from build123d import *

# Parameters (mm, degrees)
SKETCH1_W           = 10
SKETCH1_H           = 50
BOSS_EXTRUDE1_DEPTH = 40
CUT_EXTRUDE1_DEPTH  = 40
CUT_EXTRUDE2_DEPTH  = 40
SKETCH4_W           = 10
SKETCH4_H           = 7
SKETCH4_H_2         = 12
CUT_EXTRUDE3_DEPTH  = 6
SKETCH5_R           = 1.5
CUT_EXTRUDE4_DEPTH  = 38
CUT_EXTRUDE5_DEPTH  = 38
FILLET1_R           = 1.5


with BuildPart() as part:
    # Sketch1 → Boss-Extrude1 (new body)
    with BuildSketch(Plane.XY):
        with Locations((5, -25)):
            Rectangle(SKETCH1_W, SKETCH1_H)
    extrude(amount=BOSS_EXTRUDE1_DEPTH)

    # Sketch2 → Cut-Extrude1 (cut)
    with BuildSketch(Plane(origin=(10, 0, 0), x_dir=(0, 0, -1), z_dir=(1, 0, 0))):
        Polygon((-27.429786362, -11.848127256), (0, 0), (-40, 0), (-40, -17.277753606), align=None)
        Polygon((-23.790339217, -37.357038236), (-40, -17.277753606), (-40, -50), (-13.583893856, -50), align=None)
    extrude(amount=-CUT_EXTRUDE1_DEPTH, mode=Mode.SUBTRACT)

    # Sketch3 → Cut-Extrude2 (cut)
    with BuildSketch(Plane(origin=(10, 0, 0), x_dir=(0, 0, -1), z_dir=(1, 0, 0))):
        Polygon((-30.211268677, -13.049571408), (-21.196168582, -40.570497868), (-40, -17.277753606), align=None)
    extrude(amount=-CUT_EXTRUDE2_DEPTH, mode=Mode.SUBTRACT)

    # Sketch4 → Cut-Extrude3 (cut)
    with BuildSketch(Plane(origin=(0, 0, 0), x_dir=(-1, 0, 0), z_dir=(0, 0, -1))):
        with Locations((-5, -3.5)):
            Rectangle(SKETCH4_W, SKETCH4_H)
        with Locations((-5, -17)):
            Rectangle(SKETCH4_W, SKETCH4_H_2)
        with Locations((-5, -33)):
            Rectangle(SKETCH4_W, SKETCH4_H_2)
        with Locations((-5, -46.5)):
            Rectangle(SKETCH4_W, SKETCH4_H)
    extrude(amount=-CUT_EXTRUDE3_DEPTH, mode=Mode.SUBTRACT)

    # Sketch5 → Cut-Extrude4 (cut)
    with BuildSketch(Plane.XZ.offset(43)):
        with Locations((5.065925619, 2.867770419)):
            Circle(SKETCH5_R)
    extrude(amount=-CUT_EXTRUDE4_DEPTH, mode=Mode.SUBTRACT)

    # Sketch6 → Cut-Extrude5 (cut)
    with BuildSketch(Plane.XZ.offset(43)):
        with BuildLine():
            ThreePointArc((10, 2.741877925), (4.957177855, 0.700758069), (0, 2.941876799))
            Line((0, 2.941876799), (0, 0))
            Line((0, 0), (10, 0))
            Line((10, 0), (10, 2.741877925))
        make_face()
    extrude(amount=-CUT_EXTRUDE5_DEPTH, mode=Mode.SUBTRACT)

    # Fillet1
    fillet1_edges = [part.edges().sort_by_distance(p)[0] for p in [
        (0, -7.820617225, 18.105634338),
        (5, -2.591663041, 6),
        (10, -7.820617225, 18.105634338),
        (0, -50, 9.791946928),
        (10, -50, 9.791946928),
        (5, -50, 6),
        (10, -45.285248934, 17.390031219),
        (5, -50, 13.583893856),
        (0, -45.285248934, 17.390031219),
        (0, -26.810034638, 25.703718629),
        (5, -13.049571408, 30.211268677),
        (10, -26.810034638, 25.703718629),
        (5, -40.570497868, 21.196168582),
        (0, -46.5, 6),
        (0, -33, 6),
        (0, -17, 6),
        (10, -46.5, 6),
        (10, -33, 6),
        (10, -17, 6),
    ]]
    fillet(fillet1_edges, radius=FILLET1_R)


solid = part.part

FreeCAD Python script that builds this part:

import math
import FreeCAD as App
import Part
import Sketcher
Q = App.Units.Quantity


def edges_at(feature, points):
    """Names of the edges that pass closest to the given points."""
    edges = feature.Shape.Edges
    near = lambda p: min(range(len(edges)), key=lambda i: edges[i].distToShape(Part.Vertex(*p))[0])
    return sorted({f"Edge{near(p) + 1}" for p in points})

doc = App.newDocument("Part")
params = doc.addObject("Spreadsheet::Sheet", "Params")
for row, (alias, value) in enumerate([
    ("sketch1_width", "10 mm"),
    ("sketch1_height", "50 mm"),
    ("pad1_length", "40 mm"),
    ("sketch2_height", "40 mm"),
    ("pocket1_length", "40 mm"),
    ("pocket2_length", "40 mm"),
    ("sketch4_width", "10 mm"),
    ("sketch4_height", "7 mm"),
    ("sketch4_height2", "12 mm"),
    ("pocket3_length", "6 mm"),
    ("sketch5_diameter", "3 mm"),
    ("pocket4_length", "38 mm"),
    ("sketch6_width", "10 mm"),
    ("pocket5_length", "38 mm"),
    ("fillet_radius", "1.5 mm"),
], start=1):
    params.set(f"A{row}", alias)
    params.set(f"B{row}", "=" + value)
    params.setAlias(f"B{row}", alias)

body = doc.addObject("PartDesign::Body", "Body")

# Sketch on XY plane
sketch1 = body.newObject("Sketcher::SketchObject", "Sketch")
sketch1.AttachmentSupport = (doc.getObject("XY_Plane"), [""])
sketch1.MapMode = "FlatFace"
sketch1.addGeometry([
    Part.LineSegment(App.Vector(0, 0, 0), App.Vector(0, -50, 0)),
    Part.LineSegment(App.Vector(0, -50, 0), App.Vector(10, -50, 0)),
    Part.LineSegment(App.Vector(10, -50, 0), App.Vector(10, 0, 0)),
    Part.LineSegment(App.Vector(10, 0, 0), App.Vector(0, 0, 0)),
], False)
sketch1.addConstraint([
    Sketcher.Constraint("Coincident", 0, 2, 1, 1),
    Sketcher.Constraint("Coincident", 1, 2, 2, 1),
    Sketcher.Constraint("Coincident", 2, 2, 3, 1),
    Sketcher.Constraint("Coincident", 3, 2, 0, 1),
    Sketcher.Constraint("Vertical", 0),
    Sketcher.Constraint("Horizontal", 1),
    Sketcher.Constraint("Vertical", 2),
    Sketcher.Constraint("Horizontal", 3),
    Sketcher.Constraint("Coincident", 3, 2, -1, 1),
    Sketcher.Constraint("DistanceX", 1, 1, 1, 2, Q("10 mm")),
    Sketcher.Constraint("DistanceY", 0, 2, 0, 1, Q("50 mm")),
])
sketch1.setExpression("Constraints[9]", "Params.sketch1_width")
sketch1.setExpression("Constraints[10]", "Params.sketch1_height")
pad1 = body.newObject("PartDesign::Pad", "Pad")
pad1.Profile = sketch1
pad1.setExpression("Length", "Params.pad1_length")

# Sketch on YZ plane
sketch2 = body.newObject("Sketcher::SketchObject", "Sketch001")
sketch2.AttachmentSupport = (doc.getObject("YZ_Plane"), [""])
sketch2.MapMode = "FlatFace"
sketch2.AttachmentOffset = App.Placement(App.Vector(0, 0, 10), App.Rotation())
sketch2.addGeometry([
    Part.LineSegment(App.Vector(-12, 27, 0), App.Vector(0, 0, 0)),  # 0
    Part.LineSegment(App.Vector(0, 0, 0), App.Vector(0, 40, 0)),  # 1
    Part.LineSegment(App.Vector(0, 40, 0), App.Vector(-17, 40, 0)),  # 2
    Part.LineSegment(App.Vector(-17, 40, 0), App.Vector(-12, 27, 0)),  # 3
    Part.LineSegment(App.Vector(-37, 24, 0), App.Vector(-17, 40, 0)),  # 4
    Part.LineSegment(App.Vector(-17, 40, 0), App.Vector(-50, 40, 0)),  # 5
    Part.LineSegment(App.Vector(-50, 40, 0), App.Vector(-50, 14, 0)),  # 6
    Part.LineSegment(App.Vector(-50, 14, 0), App.Vector(-37, 24, 0)),  # 7
], False)
sketch2.addConstraint([
    Sketcher.Constraint("Coincident", 0, 2, 1, 1),
    Sketcher.Constraint("Coincident", 1, 2, 2, 1),
    Sketcher.Constraint("Coincident", 2, 2, 3, 1),
    Sketcher.Constraint("Coincident", 3, 2, 0, 1),
    Sketcher.Constraint("Coincident", 4, 2, 5, 1),
    Sketcher.Constraint("Coincident", 5, 2, 6, 1),
    Sketcher.Constraint("Coincident", 6, 2, 7, 1),
    Sketcher.Constraint("Coincident", 7, 2, 4, 1),
    Sketcher.Constraint("Vertical", 1),
    Sketcher.Constraint("Horizontal", 2),
    Sketcher.Constraint("Horizontal", 5),
    Sketcher.Constraint("Vertical", 6),
    Sketcher.Constraint("Coincident", 0, 2, -1, 1),
    Sketcher.Constraint("Coincident", 4, 2, 2, 2),
    Sketcher.Constraint("Parallel", 0, 3),
    Sketcher.Constraint("Parallel", 4, 7),
    Sketcher.Constraint("DistanceY", 1, 1, 1, 2, Q("40 mm")),
    Sketcher.Constraint("DistanceX", 5, 2, -1, 1, Q("50 mm")),
    Sketcher.Constraint("Distance", 0, Q("29.879279 mm")),
    Sketcher.Constraint("Distance", 3, Q("13.692739 mm")),
    Sketcher.Constraint("Distance", 7, Q("16.248569 mm")),
    Sketcher.Constraint("DistanceY", 6, 2, 6, 1, Q("26.416106 mm")),
])
sketch2.setExpression("Constraints[16]", "Params.sketch2_height")
pocket1 = body.newObject("PartDesign::Pocket", "Pocket")
pocket1.Profile = sketch2
pocket1.setExpression("Length", "Params.pocket1_length")

# Sketch on YZ plane
sketch3 = body.newObject("Sketcher::SketchObject", "Sketch002")
sketch3.AttachmentSupport = (doc.getObject("YZ_Plane"), [""])
sketch3.MapMode = "FlatFace"
sketch3.AttachmentOffset = App.Placement(App.Vector(0, 0, 10), App.Rotation())
sketch3.addGeometry([
    Part.LineSegment(App.Vector(-41, 21, 0), App.Vector(-13, 30, 0)),
    Part.LineSegment(App.Vector(-13, 30, 0), App.Vector(-17, 40, 0)),
    Part.LineSegment(App.Vector(-17, 40, 0), App.Vector(-41, 21, 0)),
], False)
sketch3.addConstraint([
    Sketcher.Constraint("Coincident", 0, 2, 1, 1),
    Sketcher.Constraint("Coincident", 1, 2, 2, 1),
    Sketcher.Constraint("Coincident", 2, 2, 0, 1),
    Sketcher.Constraint("DistanceY", -1, 1, 1, 2, Q("40 mm")),
    Sketcher.Constraint("DistanceY", 2, 2, 0, 2, Q("9.0151 mm")),
    Sketcher.Constraint("Distance", 0, Q("28.959859 mm")),
    Sketcher.Constraint("Distance", 1, Q("10.662869 mm")),
    Sketcher.Constraint("Distance", 2, Q("29.935531 mm")),
    Sketcher.Constraint("DistanceX", 0, 2, -1, 1, Q("13.049571 mm")),
])
pocket2 = body.newObject("PartDesign::Pocket", "Pocket001")
pocket2.Profile = sketch3
pocket2.setExpression("Length", "Params.pocket2_length")

# Sketch on XY plane
sketch4 = body.newObject("Sketcher::SketchObject", "Sketch003")
sketch4.AttachmentSupport = (doc.getObject("XY_Plane"), [""])
sketch4.MapMode = "FlatFace"
sketch4.addGeometry([
    Part.LineSegment(App.Vector(10, 0, 0), App.Vector(10, -7, 0)),  # 0
    Part.LineSegment(App.Vector(10, -7, 0), App.Vector(0, -7, 0)),  # 1
    Part.LineSegment(App.Vector(0, -7, 0), App.Vector(0, 0, 0)),  # 2
    Part.LineSegment(App.Vector(0, 0, 0), App.Vector(10, 0, 0)),  # 3
    Part.LineSegment(App.Vector(10, -11, 0), App.Vector(10, -23, 0)),  # 4
    Part.LineSegment(App.Vector(10, -23, 0), App.Vector(0, -23, 0)),  # 5
    Part.LineSegment(App.Vector(0, -23, 0), App.Vector(0, -11, 0)),  # 6
    Part.LineSegment(App.Vector(0, -11, 0), App.Vector(10, -11, 0)),  # 7
    Part.LineSegment(App.Vector(10, -27, 0), App.Vector(10, -39, 0)),  # 8
    Part.LineSegment(App.Vector(10, -39, 0), App.Vector(0, -39, 0)),  # 9
    Part.LineSegment(App.Vector(0, -39, 0), App.Vector(0, -27, 0)),  # 10
    Part.LineSegment(App.Vector(0, -27, 0), App.Vector(10, -27, 0)),  # 11
    Part.LineSegment(App.Vector(10, -43, 0), App.Vector(10, -50, 0)),  # 12
    Part.LineSegment(App.Vector(10, -50, 0), App.Vector(0, -50, 0)),  # 13
    Part.LineSegment(App.Vector(0, -50, 0), App.Vector(0, -43, 0)),  # 14
    Part.LineSegment(App.Vector(0, -43, 0), App.Vector(10, -43, 0)),  # 15
], False)
sketch4.addConstraint([
    Sketcher.Constraint("Coincident", 0, 2, 1, 1),
    Sketcher.Constraint("Coincident", 1, 2, 2, 1),
    Sketcher.Constraint("Coincident", 2, 2, 3, 1),
    Sketcher.Constraint("Coincident", 3, 2, 0, 1),
    Sketcher.Constraint("Coincident", 4, 2, 5, 1),
    Sketcher.Constraint("Coincident", 5, 2, 6, 1),
    Sketcher.Constraint("Coincident", 6, 2, 7, 1),
    Sketcher.Constraint("Coincident", 7, 2, 4, 1),
    Sketcher.Constraint("Coincident", 8, 2, 9, 1),
    Sketcher.Constraint("Coincident", 9, 2, 10, 1),
    Sketcher.Constraint("Coincident", 10, 2, 11, 1),
    Sketcher.Constraint("Coincident", 11, 2, 8, 1),
    Sketcher.Constraint("Coincident", 12, 2, 13, 1),
    Sketcher.Constraint("Coincident", 13, 2, 14, 1),
    Sketcher.Constraint("Coincident", 14, 2, 15, 1),
    Sketcher.Constraint("Coincident", 15, 2, 12, 1),
    Sketcher.Constraint("Vertical", 0),
    Sketcher.Constraint("Horizontal", 1),
    Sketcher.Constraint("Vertical", 2),
    Sketcher.Constraint("Horizontal", 3),
    Sketcher.Constraint("Vertical", 4),
    Sketcher.Constraint("Horizontal", 5),
    Sketcher.Constraint("Vertical", 6),
    Sketcher.Constraint("Horizontal", 7),
    Sketcher.Constraint("Vertical", 8),
    Sketcher.Constraint("Horizontal", 9),
    Sketcher.Constraint("Vertical", 10),
    Sketcher.Constraint("Horizontal", 11),
    Sketcher.Constraint("Vertical", 12),
    Sketcher.Constraint("Horizontal", 13),
    Sketcher.Constraint("Vertical", 14),
    Sketcher.Constraint("Horizontal", 15),
    Sketcher.Constraint("Coincident", 2, 2, -1, 1),
    Sketcher.Constraint("PointOnObject", 5, 2, -2),
    Sketcher.Constraint("PointOnObject", 9, 2, -2),
    Sketcher.Constraint("PointOnObject", 13, 2, -2),
    Sketcher.Constraint("Vertical", 3, 2, 4, 2),
    Sketcher.Constraint("Vertical", 7, 2, 8, 2),
    Sketcher.Constraint("Vertical", 11, 2, 12, 2),
    Sketcher.Constraint("Equal", 6, 8),
    Sketcher.Constraint("Equal", 2, 12),
    Sketcher.Constraint("DistanceX", 1, 2, 1, 1, Q("10 mm")),
    Sketcher.Constraint("DistanceY", 0, 2, 0, 1, Q("7 mm")),
    Sketcher.Constraint("DistanceY", 4, 2, 4, 1, Q("12 mm")),
    Sketcher.Constraint("DistanceY", 4, 2, -1, 1, Q("23 mm")),
    Sketcher.Constraint("DistanceY", 8, 2, -1, 1, Q("39 mm")),
    Sketcher.Constraint("DistanceY", 12, 2, -1, 1, Q("50 mm")),
])
sketch4.setExpression("Constraints[41]", "Params.sketch4_width")
sketch4.setExpression("Constraints[42]", "Params.sketch4_height")
sketch4.setExpression("Constraints[43]", "Params.sketch4_height2")
pocket3 = body.newObject("PartDesign::Pocket", "Pocket002")
pocket3.Profile = sketch4
pocket3.setExpression("Length", "Params.pocket3_length")
pocket3.Reversed = True

# Sketch on XZ plane
sketch5 = body.newObject("Sketcher::SketchObject", "Sketch004")
sketch5.AttachmentSupport = (doc.getObject("XZ_Plane"), [""])
sketch5.MapMode = "FlatFace"
sketch5.AttachmentOffset = App.Placement(App.Vector(0, 0, 43), App.Rotation())
sketch5.addGeometry(Part.Circle(App.Vector(5.1, 2.9, 0), App.Vector(0, 0, 1), 1.5), False)
sketch5.addConstraint([
    Sketcher.Constraint("Diameter", 0, Q("3 mm")),
    Sketcher.Constraint("DistanceY", -1, 1, 0, 3, Q("2.86777 mm")),
    Sketcher.Constraint("DistanceX", -1, 1, 0, 3, Q("5.065926 mm")),
])
sketch5.setExpression("Constraints[0]", "Params.sketch5_diameter")
pocket4 = body.newObject("PartDesign::Pocket", "Pocket003")
pocket4.Profile = sketch5
pocket4.setExpression("Length", "Params.pocket4_length")

# Sketch on XZ plane
sketch6 = body.newObject("Sketcher::SketchObject", "Sketch005")
sketch6.AttachmentSupport = (doc.getObject("XZ_Plane"), [""])
sketch6.MapMode = "FlatFace"
sketch6.AttachmentOffset = App.Placement(App.Vector(0, 0, 43), App.Rotation())
sketch6.addGeometry([
    Part.ArcOfCircle(Part.Circle(App.Vector(5.1, 7.6, 0), App.Vector(0, 0, 1), 6.9), math.radians(-138), math.radians(-45)),
    Part.LineSegment(App.Vector(0, 2.9, 0), App.Vector(0, 0, 0)),
    Part.LineSegment(App.Vector(0, 0, 0), App.Vector(10, 0, 0)),
    Part.LineSegment(App.Vector(10, 0, 0), App.Vector(10, 2.7, 0)),
], False)
sketch6.addConstraint([
    Sketcher.Constraint("Coincident", 0, 1, 1, 1),
    Sketcher.Constraint("Coincident", 1, 2, 2, 1),
    Sketcher.Constraint("Coincident", 2, 2, 3, 1),
    Sketcher.Constraint("Coincident", 3, 2, 0, 2),
    Sketcher.Constraint("Vertical", 1),
    Sketcher.Constraint("Horizontal", 2),
    Sketcher.Constraint("Vertical", 3),
    Sketcher.Constraint("Coincident", 1, 2, -1, 1),
    Sketcher.Constraint("DistanceX", 2, 1, 2, 2, Q("10 mm")),
    Sketcher.Constraint("DistanceY", 3, 2, 0, 1, Q("0.199999 mm")),
    Sketcher.Constraint("Radius", 0, Q("6.910009 mm")),
    Sketcher.Constraint("DistanceY", 1, 2, 1, 1, Q("2.941877 mm")),
])
sketch6.setExpression("Constraints[8]", "Params.sketch6_width")
pocket5 = body.newObject("PartDesign::Pocket", "Pocket004")
pocket5.Profile = sketch6
pocket5.setExpression("Length", "Params.pocket5_length")
doc.recompute()

fillet = body.newObject("PartDesign::Fillet", "Fillet")
fillet.Base = (pocket5, edges_at(pocket5, [
    (0, -7.22, 16.715),
    (5, -2.592, 6),
    (10, -7.22, 16.715),
    (0, -50, 9.792),
    (10, -50, 9.792),
    (5, -50, 6),
    (10, -45.285, 17.39),
    (5, -50, 13.584),
    (0, -45.285, 17.39),
    (0, -26.81, 25.704),
    (5, -13.05, 30.211),
    (10, -26.81, 25.704),
    (5, -40.57, 21.196),
    (0, -46.5, 6),
    (0, -33, 6),
    (0, -17, 6),
    (10, -46.5, 6),
    (10, -33, 6),
    (10, -17, 6),
]))
fillet.setExpression("Radius", "Params.fillet_radius")

doc.recompute()
